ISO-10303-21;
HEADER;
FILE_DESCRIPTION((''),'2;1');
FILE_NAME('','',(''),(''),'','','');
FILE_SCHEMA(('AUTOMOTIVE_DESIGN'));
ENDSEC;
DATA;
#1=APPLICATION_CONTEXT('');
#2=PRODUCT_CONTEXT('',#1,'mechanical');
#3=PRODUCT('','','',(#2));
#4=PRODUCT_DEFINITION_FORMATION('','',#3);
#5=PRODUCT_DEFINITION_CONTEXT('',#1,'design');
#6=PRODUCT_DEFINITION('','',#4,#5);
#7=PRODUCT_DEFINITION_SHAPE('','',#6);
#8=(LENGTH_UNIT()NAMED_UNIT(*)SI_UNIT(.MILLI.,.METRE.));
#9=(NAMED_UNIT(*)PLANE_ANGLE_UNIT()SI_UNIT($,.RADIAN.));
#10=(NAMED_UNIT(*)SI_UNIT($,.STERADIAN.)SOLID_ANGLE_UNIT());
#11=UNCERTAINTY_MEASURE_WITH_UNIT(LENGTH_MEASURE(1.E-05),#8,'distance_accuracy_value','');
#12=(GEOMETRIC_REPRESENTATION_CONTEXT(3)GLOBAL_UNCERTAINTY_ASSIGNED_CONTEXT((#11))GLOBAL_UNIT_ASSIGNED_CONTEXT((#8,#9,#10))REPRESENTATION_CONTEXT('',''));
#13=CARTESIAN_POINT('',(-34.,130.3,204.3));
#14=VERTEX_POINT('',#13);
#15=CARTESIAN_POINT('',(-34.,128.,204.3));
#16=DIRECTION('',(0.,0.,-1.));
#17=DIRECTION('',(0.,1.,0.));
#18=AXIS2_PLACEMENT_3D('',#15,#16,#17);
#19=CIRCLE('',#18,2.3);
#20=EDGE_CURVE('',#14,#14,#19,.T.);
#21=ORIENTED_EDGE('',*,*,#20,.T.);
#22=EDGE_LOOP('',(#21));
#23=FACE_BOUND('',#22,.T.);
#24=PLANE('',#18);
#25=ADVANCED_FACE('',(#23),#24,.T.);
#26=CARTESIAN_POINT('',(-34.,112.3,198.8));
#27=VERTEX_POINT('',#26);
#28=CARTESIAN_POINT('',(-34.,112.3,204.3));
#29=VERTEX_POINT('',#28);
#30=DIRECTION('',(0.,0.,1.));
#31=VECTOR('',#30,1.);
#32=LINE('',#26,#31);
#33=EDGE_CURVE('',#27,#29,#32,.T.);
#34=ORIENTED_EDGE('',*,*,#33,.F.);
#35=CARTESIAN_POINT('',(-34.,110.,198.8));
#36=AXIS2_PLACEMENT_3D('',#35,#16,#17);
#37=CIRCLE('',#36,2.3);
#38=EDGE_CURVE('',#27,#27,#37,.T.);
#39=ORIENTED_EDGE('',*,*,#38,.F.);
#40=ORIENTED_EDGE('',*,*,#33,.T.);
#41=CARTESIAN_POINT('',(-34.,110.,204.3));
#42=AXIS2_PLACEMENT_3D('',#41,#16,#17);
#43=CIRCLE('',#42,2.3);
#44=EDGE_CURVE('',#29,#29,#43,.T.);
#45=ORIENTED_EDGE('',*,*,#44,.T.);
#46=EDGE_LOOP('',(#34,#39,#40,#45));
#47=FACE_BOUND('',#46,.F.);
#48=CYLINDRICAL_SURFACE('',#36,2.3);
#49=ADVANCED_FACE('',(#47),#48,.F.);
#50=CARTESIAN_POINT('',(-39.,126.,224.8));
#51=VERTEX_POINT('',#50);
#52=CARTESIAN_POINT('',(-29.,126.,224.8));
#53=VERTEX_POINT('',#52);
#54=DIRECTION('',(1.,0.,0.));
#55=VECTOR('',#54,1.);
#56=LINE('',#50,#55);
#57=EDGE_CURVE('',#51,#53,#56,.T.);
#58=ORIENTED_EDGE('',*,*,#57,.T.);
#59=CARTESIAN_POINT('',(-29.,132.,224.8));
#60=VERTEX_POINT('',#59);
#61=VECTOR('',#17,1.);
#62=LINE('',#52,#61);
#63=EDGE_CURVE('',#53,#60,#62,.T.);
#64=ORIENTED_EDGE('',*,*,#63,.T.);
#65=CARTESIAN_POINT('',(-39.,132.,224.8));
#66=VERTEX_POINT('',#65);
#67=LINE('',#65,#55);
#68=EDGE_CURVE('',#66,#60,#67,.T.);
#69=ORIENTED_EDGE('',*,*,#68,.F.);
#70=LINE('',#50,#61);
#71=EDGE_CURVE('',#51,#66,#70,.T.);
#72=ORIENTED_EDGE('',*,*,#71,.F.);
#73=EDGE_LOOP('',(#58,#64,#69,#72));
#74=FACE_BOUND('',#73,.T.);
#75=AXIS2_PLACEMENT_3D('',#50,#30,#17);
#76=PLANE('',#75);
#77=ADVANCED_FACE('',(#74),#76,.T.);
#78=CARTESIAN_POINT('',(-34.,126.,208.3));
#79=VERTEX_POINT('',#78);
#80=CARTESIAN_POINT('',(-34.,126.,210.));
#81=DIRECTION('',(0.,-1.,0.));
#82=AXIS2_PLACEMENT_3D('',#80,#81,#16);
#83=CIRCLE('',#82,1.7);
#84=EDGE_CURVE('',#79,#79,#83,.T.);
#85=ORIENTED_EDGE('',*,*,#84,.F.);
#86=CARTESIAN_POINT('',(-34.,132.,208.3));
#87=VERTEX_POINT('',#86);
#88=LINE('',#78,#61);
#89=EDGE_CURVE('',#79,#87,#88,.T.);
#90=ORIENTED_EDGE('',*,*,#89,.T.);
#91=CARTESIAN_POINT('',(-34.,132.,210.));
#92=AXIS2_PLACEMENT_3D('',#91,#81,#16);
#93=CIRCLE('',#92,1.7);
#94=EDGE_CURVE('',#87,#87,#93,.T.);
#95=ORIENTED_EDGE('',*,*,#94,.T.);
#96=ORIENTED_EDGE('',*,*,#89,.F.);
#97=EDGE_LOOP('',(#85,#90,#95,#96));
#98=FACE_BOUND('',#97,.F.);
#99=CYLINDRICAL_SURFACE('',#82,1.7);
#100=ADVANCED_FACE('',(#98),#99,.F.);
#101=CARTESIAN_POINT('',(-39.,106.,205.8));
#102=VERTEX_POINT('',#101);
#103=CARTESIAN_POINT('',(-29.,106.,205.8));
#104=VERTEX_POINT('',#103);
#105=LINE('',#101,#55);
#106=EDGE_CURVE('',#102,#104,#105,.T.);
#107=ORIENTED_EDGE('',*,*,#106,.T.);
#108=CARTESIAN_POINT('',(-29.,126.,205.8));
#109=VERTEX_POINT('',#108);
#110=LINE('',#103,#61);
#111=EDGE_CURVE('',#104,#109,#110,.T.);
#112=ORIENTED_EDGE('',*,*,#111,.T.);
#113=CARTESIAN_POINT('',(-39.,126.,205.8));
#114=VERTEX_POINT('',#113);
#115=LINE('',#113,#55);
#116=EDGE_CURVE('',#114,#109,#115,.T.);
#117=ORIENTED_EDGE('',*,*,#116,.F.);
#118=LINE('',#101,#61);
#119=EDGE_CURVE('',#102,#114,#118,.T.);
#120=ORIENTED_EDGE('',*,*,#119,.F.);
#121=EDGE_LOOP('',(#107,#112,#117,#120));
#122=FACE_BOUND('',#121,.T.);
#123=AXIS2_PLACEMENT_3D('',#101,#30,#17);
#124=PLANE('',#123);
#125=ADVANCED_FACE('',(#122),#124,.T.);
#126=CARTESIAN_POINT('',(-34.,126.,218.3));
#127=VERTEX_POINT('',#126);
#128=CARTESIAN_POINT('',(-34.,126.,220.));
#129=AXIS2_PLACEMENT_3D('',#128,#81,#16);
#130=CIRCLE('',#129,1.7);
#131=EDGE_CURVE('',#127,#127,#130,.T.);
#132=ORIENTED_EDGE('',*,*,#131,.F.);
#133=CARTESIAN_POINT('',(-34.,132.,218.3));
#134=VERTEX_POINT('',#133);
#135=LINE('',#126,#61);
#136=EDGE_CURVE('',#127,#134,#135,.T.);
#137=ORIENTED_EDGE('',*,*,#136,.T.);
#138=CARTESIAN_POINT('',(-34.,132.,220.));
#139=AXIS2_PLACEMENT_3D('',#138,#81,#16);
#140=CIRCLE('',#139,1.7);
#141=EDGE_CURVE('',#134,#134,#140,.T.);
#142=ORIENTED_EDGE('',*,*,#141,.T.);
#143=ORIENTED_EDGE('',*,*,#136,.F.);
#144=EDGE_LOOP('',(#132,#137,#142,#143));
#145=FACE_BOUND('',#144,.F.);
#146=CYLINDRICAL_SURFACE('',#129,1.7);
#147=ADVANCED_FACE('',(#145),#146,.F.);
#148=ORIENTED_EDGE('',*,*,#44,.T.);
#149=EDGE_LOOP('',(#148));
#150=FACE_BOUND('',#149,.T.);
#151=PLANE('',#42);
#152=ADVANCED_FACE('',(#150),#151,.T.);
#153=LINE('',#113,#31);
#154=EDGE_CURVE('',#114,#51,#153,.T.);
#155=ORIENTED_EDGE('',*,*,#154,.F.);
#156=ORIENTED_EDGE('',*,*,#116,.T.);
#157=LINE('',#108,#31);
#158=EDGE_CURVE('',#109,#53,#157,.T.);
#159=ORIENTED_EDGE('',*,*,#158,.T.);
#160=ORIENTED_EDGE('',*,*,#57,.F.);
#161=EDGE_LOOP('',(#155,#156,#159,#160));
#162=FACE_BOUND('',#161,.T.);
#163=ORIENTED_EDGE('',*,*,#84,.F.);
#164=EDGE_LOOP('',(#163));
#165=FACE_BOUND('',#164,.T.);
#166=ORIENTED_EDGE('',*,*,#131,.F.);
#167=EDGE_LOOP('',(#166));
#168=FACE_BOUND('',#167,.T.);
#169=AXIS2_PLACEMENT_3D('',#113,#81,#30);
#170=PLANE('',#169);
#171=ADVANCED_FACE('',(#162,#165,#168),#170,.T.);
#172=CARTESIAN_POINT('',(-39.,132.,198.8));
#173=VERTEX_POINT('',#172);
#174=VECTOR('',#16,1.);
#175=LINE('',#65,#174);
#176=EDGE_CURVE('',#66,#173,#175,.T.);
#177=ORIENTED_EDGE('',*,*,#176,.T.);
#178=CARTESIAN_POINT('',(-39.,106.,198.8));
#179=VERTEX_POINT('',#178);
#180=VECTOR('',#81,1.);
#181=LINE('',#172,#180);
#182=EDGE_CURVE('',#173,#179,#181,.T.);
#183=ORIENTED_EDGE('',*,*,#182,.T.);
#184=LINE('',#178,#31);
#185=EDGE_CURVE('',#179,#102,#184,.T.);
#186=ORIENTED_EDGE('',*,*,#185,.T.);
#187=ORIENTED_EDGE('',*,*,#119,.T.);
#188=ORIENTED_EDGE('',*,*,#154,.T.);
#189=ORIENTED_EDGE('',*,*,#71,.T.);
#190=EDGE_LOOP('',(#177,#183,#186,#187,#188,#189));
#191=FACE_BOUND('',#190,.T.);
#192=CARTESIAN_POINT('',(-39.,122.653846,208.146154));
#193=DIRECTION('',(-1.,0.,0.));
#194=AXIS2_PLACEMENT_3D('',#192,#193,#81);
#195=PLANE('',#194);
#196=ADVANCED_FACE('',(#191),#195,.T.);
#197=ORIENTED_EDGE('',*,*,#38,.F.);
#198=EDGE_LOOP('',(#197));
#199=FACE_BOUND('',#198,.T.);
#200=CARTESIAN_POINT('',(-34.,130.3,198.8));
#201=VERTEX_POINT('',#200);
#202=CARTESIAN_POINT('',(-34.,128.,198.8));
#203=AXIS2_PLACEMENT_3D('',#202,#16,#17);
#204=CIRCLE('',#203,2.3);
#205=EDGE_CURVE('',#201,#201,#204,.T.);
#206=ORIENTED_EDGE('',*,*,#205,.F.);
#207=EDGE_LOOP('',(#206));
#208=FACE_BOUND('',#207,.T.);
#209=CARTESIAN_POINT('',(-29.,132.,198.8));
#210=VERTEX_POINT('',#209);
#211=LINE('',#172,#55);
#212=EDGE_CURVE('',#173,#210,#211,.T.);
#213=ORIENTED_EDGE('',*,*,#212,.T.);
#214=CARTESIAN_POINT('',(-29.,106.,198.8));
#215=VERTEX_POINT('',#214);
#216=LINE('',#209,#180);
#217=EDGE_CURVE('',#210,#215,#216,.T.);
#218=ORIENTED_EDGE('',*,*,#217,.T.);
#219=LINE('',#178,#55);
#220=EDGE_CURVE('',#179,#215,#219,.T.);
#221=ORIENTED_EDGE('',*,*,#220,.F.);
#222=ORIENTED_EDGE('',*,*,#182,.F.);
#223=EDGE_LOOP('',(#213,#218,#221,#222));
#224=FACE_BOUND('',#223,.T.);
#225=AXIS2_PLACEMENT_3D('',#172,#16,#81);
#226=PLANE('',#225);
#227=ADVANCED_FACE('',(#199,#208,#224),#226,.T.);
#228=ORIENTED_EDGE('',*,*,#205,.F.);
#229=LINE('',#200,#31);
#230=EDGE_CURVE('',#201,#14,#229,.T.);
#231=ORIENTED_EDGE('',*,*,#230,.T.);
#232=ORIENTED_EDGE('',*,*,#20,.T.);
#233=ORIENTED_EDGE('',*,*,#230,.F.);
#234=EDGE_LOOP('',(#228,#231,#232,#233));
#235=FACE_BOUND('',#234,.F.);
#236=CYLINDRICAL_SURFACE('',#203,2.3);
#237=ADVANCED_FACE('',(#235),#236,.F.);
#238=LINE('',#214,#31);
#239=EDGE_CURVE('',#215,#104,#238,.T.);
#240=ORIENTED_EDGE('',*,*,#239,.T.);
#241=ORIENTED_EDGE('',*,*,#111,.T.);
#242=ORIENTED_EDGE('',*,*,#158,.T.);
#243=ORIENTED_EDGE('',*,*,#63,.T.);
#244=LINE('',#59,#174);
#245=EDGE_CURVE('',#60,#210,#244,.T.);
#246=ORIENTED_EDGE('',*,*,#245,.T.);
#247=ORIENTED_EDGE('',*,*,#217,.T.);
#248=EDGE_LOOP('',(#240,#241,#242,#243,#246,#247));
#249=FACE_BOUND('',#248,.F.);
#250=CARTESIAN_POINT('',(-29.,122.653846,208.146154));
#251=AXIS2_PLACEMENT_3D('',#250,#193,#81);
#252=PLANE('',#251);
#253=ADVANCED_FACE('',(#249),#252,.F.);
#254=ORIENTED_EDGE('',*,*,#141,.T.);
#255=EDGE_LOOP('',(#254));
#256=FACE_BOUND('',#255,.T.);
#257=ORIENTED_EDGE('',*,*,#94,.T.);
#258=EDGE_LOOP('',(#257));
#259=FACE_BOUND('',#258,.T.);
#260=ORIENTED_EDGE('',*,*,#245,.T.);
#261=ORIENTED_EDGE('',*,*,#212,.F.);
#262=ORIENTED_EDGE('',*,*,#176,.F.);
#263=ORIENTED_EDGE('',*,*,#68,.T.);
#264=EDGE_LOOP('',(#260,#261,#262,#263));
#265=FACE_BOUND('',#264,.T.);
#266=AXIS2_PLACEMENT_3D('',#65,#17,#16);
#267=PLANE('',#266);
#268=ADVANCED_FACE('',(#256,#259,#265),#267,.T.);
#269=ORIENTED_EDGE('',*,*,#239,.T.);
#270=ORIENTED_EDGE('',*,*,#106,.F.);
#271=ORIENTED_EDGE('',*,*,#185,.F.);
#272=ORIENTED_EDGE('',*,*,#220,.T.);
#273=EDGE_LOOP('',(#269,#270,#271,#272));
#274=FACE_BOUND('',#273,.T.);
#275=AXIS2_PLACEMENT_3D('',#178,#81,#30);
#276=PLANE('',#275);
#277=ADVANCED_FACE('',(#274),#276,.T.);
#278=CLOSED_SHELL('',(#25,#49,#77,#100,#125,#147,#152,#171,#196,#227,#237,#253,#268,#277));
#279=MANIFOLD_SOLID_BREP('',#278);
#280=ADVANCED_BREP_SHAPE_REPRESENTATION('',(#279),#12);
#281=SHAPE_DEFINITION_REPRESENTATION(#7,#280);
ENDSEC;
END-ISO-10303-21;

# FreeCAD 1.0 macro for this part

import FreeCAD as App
import Part
import Sketcher
Q = App.Units.Quantity

doc = App.newDocument("Part")
body = doc.addObject("PartDesign::Body", "Body")

sketch1 = body.newObject("Sketcher::SketchObject", "Sketch")
sketch1.AttachmentSupport = (doc.getObject("YZ_Plane"), [""])
sketch1.MapMode = "FlatFace"
sketch1.addGeometry(Part.LineSegment(App.Vector(106, 206, 0), App.Vector(106, 199, 0)), False)
sketch1.addGeometry(Part.LineSegment(App.Vector(106, 199, 0), App.Vector(132, 199, 0)), False)
sketch1.addGeometry(Part.LineSegment(App.Vector(132, 199, 0), App.Vector(132, 225, 0)), False)
sketch1.addGeometry(Part.LineSegment(App.Vector(132, 225, 0), App.Vector(126, 225, 0)), False)
sketch1.addGeometry(Part.LineSegment(App.Vector(126, 225, 0), App.Vector(126, 206, 0)), False)
sketch1.addGeometry(Part.LineSegment(App.Vector(126, 206, 0), App.Vector(106, 206, 0)), False)
sketch1.addConstraint(Sketcher.Constraint("Coincident", 0, 2, 1, 1))
sketch1.addConstraint(Sketcher.Constraint("Coincident", 1, 2, 2, 1))
sketch1.addConstraint(Sketcher.Constraint("Coincident", 2, 2, 3, 1))
sketch1.addConstraint(Sketcher.Constraint("Coincident", 3, 2, 4, 1))
sketch1.addConstraint(Sketcher.Constraint("Coincident", 4, 2, 5, 1))
sketch1.addConstraint(Sketcher.Constraint("Coincident", 5, 2, 0, 1))
sketch1.addConstraint(Sketcher.Constraint("Vertical", 0))
sketch1.addConstraint(Sketcher.Constraint("Horizontal", 1))
sketch1.addConstraint(Sketcher.Constraint("Vertical", 2))
sketch1.addConstraint(Sketcher.Constraint("Horizontal", 3))
sketch1.addConstraint(Sketcher.Constraint("Vertical", 4))
sketch1.addConstraint(Sketcher.Constraint("Horizontal", 5))
sketch1.addConstraint(Sketcher.Constraint("Equal", 1, 2))
sketch1.addConstraint(Sketcher.Constraint("DistanceX", 1, 1, 1, 2, Q("26 mm")))
sketch1.addConstraint(Sketcher.Constraint("DistanceX", 3, 2, 3, 1, Q("6 mm")))
sketch1.addConstraint(Sketcher.Constraint("DistanceY", 0, 2, 0, 1, Q("7 mm")))
sketch1.addConstraint(Sketcher.Constraint("DistanceX", -1, 1, 0, 2, Q("106 mm")))
sketch1.addConstraint(Sketcher.Constraint("DistanceY", -1, 1, 0, 2, Q("198.8 mm")))
pad1 = body.newObject("PartDesign::Pad", "Pad")
pad1.Profile = sketch1
pad1.Length = 10

sketch2 = body.newObject("Sketcher::SketchObject", "Sketch001")
sketch2.AttachmentSupport = (doc.getObject("XY_Plane"), [""])
sketch2.MapMode = "FlatFace"
sketch2.AttachmentOffset = App.Placement(App.Vector(0, 0, 198.8), App.Rotation())
sketch2.addGeometry(Part.Circle(App.Vector(5, 128, 0), App.Vector(0, 0, 1), 2.3), False)
sketch2.addGeometry(Part.Circle(App.Vector(5, 110, 0), App.Vector(0, 0, 1), 2.3), False)
sketch2.addConstraint(Sketcher.Constraint("Equal", 0, 1))
sketch2.addConstraint(Sketcher.Constraint("Vertical", 0, 3, 1, 3))
sketch2.addConstraint(Sketcher.Constraint("Diameter", 0, Q("4.6 mm")))
sketch2.addConstraint(Sketcher.Constraint("DistanceX", -1, 1, 0, 3, Q("5 mm")))
sketch2.addConstraint(Sketcher.Constraint("DistanceY", -1, 1, 0, 3, Q("128 mm")))
sketch2.addConstraint(Sketcher.Constraint("DistanceY", -1, 1, 1, 3, Q("110 mm")))
pocket1 = body.newObject("PartDesign::Pocket", "Pocket")
pocket1.Profile = sketch2
pocket1.Length = 5.5
pocket1.Reversed = True

sketch3 = body.newObject("Sketcher::SketchObject", "Sketch002")
sketch3.AttachmentSupport = (doc.getObject("XZ_Plane"), [""])
sketch3.MapMode = "FlatFace"
sketch3.AttachmentOffset = App.Placement(App.Vector(0, 0, -126), App.Rotation())
sketch3.addGeometry(Part.Circle(App.Vector(5, 220, 0), App.Vector(0, 0, 1), 1.7), False)
sketch3.addGeometry(Part.Circle(App.Vector(5, 210, 0), App.Vector(0, 0, 1), 1.7), False)
sketch3.addConstraint(Sketcher.Constraint("Equal", 0, 1))
sketch3.addConstraint(Sketcher.Constraint("Vertical", 0, 3, 1, 3))
sketch3.addConstraint(Sketcher.Constraint("Diameter", 0, Q("3.4 mm")))
sketch3.addConstraint(Sketcher.Constraint("DistanceX", -1, 1, 0, 3, Q("5 mm")))
sketch3.addConstraint(Sketcher.Constraint("DistanceY", -1, 1, 0, 3, Q("220 mm")))
sketch3.addConstraint(Sketcher.Constraint("DistanceY", -1, 1, 1, 3, Q("210 mm")))
pocket2 = body.newObject("PartDesign::Pocket", "Pocket001")
pocket2.Profile = sketch3
pocket2.Length = 25
body2 = doc.addObject("PartDesign::Body", "Body001")
doc.recompute()

body.Placement = App.Placement(App.Vector(-39, 0, 0), App.Rotation(App.Vector(0, 0, 1), 0))
boolean = body2.newObject("PartDesign::Boolean", "Boolean")
boolean.Type = "Fuse"
boolean.addObjects([body])

doc.recompute()
